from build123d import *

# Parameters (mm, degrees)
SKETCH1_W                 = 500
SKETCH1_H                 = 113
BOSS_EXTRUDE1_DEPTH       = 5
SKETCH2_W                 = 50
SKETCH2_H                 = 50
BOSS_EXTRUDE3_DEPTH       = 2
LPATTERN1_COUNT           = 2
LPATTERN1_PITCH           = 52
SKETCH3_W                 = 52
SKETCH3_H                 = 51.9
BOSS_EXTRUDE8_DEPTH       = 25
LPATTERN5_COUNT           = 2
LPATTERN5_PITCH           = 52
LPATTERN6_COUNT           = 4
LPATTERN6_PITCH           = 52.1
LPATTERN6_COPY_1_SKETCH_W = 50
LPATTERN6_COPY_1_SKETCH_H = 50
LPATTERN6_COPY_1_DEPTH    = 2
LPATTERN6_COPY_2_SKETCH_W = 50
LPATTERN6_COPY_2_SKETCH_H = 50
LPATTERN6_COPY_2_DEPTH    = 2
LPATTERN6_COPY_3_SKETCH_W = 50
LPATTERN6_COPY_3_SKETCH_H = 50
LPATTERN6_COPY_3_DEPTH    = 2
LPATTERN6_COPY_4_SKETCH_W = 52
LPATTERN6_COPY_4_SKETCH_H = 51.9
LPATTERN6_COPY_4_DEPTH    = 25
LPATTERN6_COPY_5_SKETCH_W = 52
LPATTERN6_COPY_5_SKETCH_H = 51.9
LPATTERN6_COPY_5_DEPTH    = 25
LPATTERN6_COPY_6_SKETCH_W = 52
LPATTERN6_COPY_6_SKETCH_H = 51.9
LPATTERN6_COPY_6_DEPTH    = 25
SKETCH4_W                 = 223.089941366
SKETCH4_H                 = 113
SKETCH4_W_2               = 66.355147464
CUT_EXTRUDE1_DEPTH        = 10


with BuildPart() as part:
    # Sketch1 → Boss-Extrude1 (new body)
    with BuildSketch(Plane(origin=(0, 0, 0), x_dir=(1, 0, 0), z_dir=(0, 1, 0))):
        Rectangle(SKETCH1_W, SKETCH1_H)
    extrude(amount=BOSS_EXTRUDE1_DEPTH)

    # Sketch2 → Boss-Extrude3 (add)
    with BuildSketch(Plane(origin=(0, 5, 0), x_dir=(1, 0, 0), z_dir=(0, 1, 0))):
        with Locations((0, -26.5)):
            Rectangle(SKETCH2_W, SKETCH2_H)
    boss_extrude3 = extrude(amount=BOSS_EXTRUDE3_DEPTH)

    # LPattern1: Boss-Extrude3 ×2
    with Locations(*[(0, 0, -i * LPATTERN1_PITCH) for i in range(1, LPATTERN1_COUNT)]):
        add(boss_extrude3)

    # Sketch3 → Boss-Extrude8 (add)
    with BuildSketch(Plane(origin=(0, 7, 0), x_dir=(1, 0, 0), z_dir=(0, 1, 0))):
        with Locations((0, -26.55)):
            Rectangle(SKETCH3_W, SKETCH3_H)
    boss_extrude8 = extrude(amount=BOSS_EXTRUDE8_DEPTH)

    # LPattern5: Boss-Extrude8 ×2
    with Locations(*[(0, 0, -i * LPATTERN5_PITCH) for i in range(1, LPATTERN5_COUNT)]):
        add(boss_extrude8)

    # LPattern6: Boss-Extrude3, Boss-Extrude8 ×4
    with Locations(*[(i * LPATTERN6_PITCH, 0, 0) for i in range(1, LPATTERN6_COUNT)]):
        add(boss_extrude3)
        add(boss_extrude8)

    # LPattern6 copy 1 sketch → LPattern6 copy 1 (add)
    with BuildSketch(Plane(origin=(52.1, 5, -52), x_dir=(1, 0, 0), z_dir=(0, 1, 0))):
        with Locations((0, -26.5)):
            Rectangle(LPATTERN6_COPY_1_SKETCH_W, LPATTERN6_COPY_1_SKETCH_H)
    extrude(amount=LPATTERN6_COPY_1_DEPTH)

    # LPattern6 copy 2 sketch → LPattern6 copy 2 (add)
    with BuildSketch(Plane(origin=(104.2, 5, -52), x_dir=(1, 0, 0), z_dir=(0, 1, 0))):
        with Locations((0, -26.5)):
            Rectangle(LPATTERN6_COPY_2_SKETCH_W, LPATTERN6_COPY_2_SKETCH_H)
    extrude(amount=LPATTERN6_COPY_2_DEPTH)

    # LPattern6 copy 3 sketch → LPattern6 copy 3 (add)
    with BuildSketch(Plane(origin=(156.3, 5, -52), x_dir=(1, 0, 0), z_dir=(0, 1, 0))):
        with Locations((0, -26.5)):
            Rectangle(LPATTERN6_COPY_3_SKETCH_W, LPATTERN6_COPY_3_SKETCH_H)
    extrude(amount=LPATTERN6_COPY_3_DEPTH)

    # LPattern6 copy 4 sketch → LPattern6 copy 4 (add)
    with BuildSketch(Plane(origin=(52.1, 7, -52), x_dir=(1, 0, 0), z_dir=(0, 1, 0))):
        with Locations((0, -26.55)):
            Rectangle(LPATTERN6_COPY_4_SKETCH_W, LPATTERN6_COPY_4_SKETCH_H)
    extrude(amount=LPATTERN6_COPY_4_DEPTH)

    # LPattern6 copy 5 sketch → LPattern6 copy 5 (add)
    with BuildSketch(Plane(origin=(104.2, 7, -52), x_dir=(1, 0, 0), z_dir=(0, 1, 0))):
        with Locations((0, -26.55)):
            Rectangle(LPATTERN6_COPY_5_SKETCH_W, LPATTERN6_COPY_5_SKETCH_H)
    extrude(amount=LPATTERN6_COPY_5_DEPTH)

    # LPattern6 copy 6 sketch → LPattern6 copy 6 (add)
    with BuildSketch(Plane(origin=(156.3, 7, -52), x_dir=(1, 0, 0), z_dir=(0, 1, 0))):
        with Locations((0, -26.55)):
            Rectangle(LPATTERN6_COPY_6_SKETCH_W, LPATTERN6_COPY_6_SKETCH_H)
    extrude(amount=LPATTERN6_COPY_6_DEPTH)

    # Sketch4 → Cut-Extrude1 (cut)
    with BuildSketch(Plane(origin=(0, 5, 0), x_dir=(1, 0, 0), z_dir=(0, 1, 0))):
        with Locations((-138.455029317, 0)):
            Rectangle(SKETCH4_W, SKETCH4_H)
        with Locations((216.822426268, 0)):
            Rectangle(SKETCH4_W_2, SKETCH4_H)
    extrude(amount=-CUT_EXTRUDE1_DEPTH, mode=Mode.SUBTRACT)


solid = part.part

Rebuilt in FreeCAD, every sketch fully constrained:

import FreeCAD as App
import Part
import Sketcher
Q = App.Units.Quantity

doc = App.newDocument("Part")
body = doc.addObject("PartDesign::Body", "Body")

# Sketch on XZ plane
sketch1 = body.newObject("Sketcher::SketchObject", "Sketch")
sketch1.AttachmentSupport = (doc.getObject("XZ_Plane"), [""])
sketch1.MapMode = "FlatFace"
sketch1.addGeometry([
    Part.LineSegment(App.Vector(-250, -56.5, 0), App.Vector(-250, 56.5, 0)),
    Part.LineSegment(App.Vector(-250, 56.5, 0), App.Vector(250, 56.5, 0)),
    Part.LineSegment(App.Vector(250, 56.5, 0), App.Vector(250, -56.5, 0)),
    Part.LineSegment(App.Vector(250, -56.5, 0), App.Vector(-250, -56.5, 0)),
], False)
sketch1.addConstraint([
    Sketcher.Constraint("Coincident", 0, 2, 1, 1),
    Sketcher.Constraint("Coincident", 1, 2, 2, 1),
    Sketcher.Constraint("Coincident", 2, 2, 3, 1),
    Sketcher.Constraint("Coincident", 3, 2, 0, 1),
    Sketcher.Constraint("Vertical", 0),
    Sketcher.Constraint("Horizontal", 1),
    Sketcher.Constraint("Vertical", 2),
    Sketcher.Constraint("Horizontal", 3),
    Sketcher.Constraint("Symmetric", 0, 2, 2, 2, -1, 1),
    Sketcher.Constraint("DistanceX", 1, 1, 1, 2, Q("500 mm")),
    Sketcher.Constraint("DistanceY", 0, 1, 0, 2, Q("113 mm")),
])
pad1 = body.newObject("PartDesign::Pad", "Pad")
pad1.Profile = sketch1
pad1.Length = 5
pad1.Reversed = True

# Sketch on XZ plane
sketch2 = body.newObject("Sketcher::SketchObject", "Sketch001")
sketch2.AttachmentSupport = (doc.getObject("XZ_Plane"), [""])
sketch2.MapMode = "FlatFace"
sketch2.AttachmentOffset = App.Placement(App.Vector(0, 0, -5), App.Rotation())
sketch2.addGeometry([
    Part.LineSegment(App.Vector(-25, 1.5, 0), App.Vector(-25, 51.5, 0)),
    Part.LineSegment(App.Vector(-25, 51.5, 0), App.Vector(25, 51.5, 0)),
    Part.LineSegment(App.Vector(25, 51.5, 0), App.Vector(25, 1.5, 0)),
    Part.LineSegment(App.Vector(25, 1.5, 0), App.Vector(-25, 1.5, 0)),
], False)
sketch2.addConstraint([
    Sketcher.Constraint("Coincident", 0, 2, 1, 1),
    Sketcher.Constraint("Coincident", 1, 2, 2, 1),
    Sketcher.Constraint("Coincident", 2, 2, 3, 1),
    Sketcher.Constraint("Coincident", 3, 2, 0, 1),
    Sketcher.Constraint("Vertical", 0),
    Sketcher.Constraint("Horizontal", 1),
    Sketcher.Constraint("Vertical", 2),
    Sketcher.Constraint("Horizontal", 3),
    Sketcher.Constraint("Equal", 3, 0),
    Sketcher.Constraint("DistanceX", 1, 1, 1, 2, Q("50 mm")),
    Sketcher.Constraint("DistanceX", 0, 2, -1, 1, Q("25 mm")),
    Sketcher.Constraint("DistanceY", -1, 1, 0, 2, Q("51.5 mm")),
])
pad2 = body.newObject("PartDesign::Pad", "Pad001")
pad2.Profile = sketch2
pad2.Length = 2
pad2.Reversed = True
doc.recompute()

linearpattern = body.newObject("PartDesign::LinearPattern", "LinearPattern")
linearpattern.Originals = [pad2]
linearpattern.Direction = (doc.getObject("Z_Axis"), [""])
linearpattern.Mode = "offset"
linearpattern.Offset = 52
linearpattern.Occurrences = 2
linearpattern.Reversed = True
body.Tip = linearpattern

# Sketch on XZ plane
sketch3 = body.newObject("Sketcher::SketchObject", "Sketch002")
sketch3.AttachmentSupport = (doc.getObject("XZ_Plane"), [""])
sketch3.MapMode = "FlatFace"
sketch3.AttachmentOffset = App.Placement(App.Vector(0, 0, -7), App.Rotation())
sketch3.addGeometry([
    Part.LineSegment(App.Vector(-26, 0.6, 0), App.Vector(-26, 52.5, 0)),
    Part.LineSegment(App.Vector(-26, 52.5, 0), App.Vector(26, 52.5, 0)),
    Part.LineSegment(App.Vector(26, 52.5, 0), App.Vector(26, 0.6, 0)),
    Part.LineSegment(App.Vector(26, 0.6, 0), App.Vector(-26, 0.6, 0)),
], False)
sketch3.addConstraint([
    Sketcher.Constraint("Coincident", 0, 2, 1, 1),
    Sketcher.Constraint("Coincident", 1, 2, 2, 1),
    Sketcher.Constraint("Coincident", 2, 2, 3, 1),
    Sketcher.Constraint("Coincident", 3, 2, 0, 1),
    Sketcher.Constraint("Vertical", 0),
    Sketcher.Constraint("Horizontal", 1),
    Sketcher.Constraint("Vertical", 2),
    Sketcher.Constraint("Horizontal", 3),
    Sketcher.Constraint("DistanceX", 1, 1, 1, 2, Q("52 mm")),
    Sketcher.Constraint("DistanceY", 0, 1, 0, 2, Q("51.9 mm")),
    Sketcher.Constraint("DistanceX", 0, 2, -1, 1, Q("26 mm")),
    Sketcher.Constraint("DistanceY", -1, 1, 0, 2, Q("52.5 mm")),
])
pad3 = body.newObject("PartDesign::Pad", "Pad002")
pad3.Profile = sketch3
pad3.Length = 25
pad3.Reversed = True
doc.recompute()

linearpattern2 = body.newObject("PartDesign::LinearPattern", "LinearPattern001")
linearpattern2.Originals = [pad3]
linearpattern2.Direction = (doc.getObject("Z_Axis"), [""])
linearpattern2.Mode = "offset"
linearpattern2.Offset = 52
linearpattern2.Occurrences = 2
linearpattern2.Reversed = True
body.Tip = linearpattern2
doc.recompute()

linearpattern3 = body.newObject("PartDesign::LinearPattern", "LinearPattern002")
linearpattern3.Originals = [pad2, pad3]
linearpattern3.Direction = (doc.getObject("X_Axis"), [""])
linearpattern3.Mode = "offset"
linearpattern3.Offset = 52.1
linearpattern3.Occurrences = 4
body.Tip = linearpattern3

# Sketch on XZ plane
sketch4 = body.newObject("Sketcher::SketchObject", "Sketch003")
sketch4.AttachmentSupport = (doc.getObject("XZ_Plane"), [""])
sketch4.MapMode = "FlatFace"
sketch4.AttachmentOffset = App.Placement(App.Vector(0, 0, -5), App.Rotation())
sketch4.addGeometry([
    Part.LineSegment(App.Vector(27.1, -50.5, 0), App.Vector(27.1, -0.5, 0)),
    Part.LineSegment(App.Vector(27.1, -0.5, 0), App.Vector(77.1, -0.5, 0)),
    Part.LineSegment(App.Vector(77.1, -0.5, 0), App.Vector(77.1, -50.5, 0)),
    Part.LineSegment(App.Vector(77.1, -50.5, 0), App.Vector(27.1, -50.5, 0)),
], False)
sketch4.addConstraint([
    Sketcher.Constraint("Coincident", 0, 2, 1, 1),
    Sketcher.Constraint("Coincident", 1, 2, 2, 1),
    Sketcher.Constraint("Coincident", 2, 2, 3, 1),
    Sketcher.Constraint("Coincident", 3, 2, 0, 1),
    Sketcher.Constraint("Vertical", 0),
    Sketcher.Constraint("Horizontal", 1),
    Sketcher.Constraint("Vertical", 2),
    Sketcher.Constraint("Horizontal", 3),
    Sketcher.Constraint("Equal", 3, 0),
    Sketcher.Constraint("DistanceX", 1, 1, 1, 2, Q("50 mm")),
    Sketcher.Constraint("DistanceX", -1, 1, 0, 2, Q("27.1 mm")),
    Sketcher.Constraint("DistanceY", 0, 2, -1, 1, Q("0.5 mm")),
])
pad4 = body.newObject("PartDesign::Pad", "Pad003")
pad4.Profile = sketch4
pad4.Length = 2
pad4.Reversed = True

# Sketch on XZ plane
sketch5 = body.newObject("Sketcher::SketchObject", "Sketch004")
sketch5.AttachmentSupport = (doc.getObject("XZ_Plane"), [""])
sketch5.MapMode = "FlatFace"
sketch5.AttachmentOffset = App.Placement(App.Vector(0, 0, -5), App.Rotation())
sketch5.addGeometry([
    Part.LineSegment(App.Vector(79.2, -50.5, 0), App.Vector(79.2, -0.5, 0)),
    Part.LineSegment(App.Vector(79.2, -0.5, 0), App.Vector(129.2, -0.5, 0)),
    Part.LineSegment(App.Vector(129.2, -0.5, 0), App.Vector(129.2, -50.5, 0)),
    Part.LineSegment(App.Vector(129.2, -50.5, 0), App.Vector(79.2, -50.5, 0)),
], False)
sketch5.addConstraint([
    Sketcher.Constraint("Coincident", 0, 2, 1, 1),
    Sketcher.Constraint("Coincident", 1, 2, 2, 1),
    Sketcher.Constraint("Coincident", 2, 2, 3, 1),
    Sketcher.Constraint("Coincident", 3, 2, 0, 1),
    Sketcher.Constraint("Vertical", 0),
    Sketcher.Constraint("Horizontal", 1),
    Sketcher.Constraint("Vertical", 2),
    Sketcher.Constraint("Horizontal", 3),
    Sketcher.Constraint("Equal", 3, 0),
    Sketcher.Constraint("DistanceX", 1, 1, 1, 2, Q("50 mm")),
    Sketcher.Constraint("DistanceX", -1, 1, 0, 2, Q("79.2 mm")),
    Sketcher.Constraint("DistanceY", 0, 2, -1, 1, Q("0.5 mm")),
])
pad5 = body.newObject("PartDesign::Pad", "Pad004")
pad5.Profile = sketch5
pad5.Length = 2
pad5.Reversed = True

# Sketch on XZ plane
sketch6 = body.newObject("Sketcher::SketchObject", "Sketch005")
sketch6.AttachmentSupport = (doc.getObject("XZ_Plane"), [""])
sketch6.MapMode = "FlatFace"
sketch6.AttachmentOffset = App.Placement(App.Vector(0, 0, -5), App.Rotation())
sketch6.addGeometry([
    Part.LineSegment(App.Vector(131.3, -50.5, 0), App.Vector(131.3, -0.5, 0)),
    Part.LineSegment(App.Vector(131.3, -0.5, 0), App.Vector(181.3, -0.5, 0)),
    Part.LineSegment(App.Vector(181.3, -0.5, 0), App.Vector(181.3, -50.5, 0)),
    Part.LineSegment(App.Vector(181.3, -50.5, 0), App.Vector(131.3, -50.5, 0)),
], False)
sketch6.addConstraint([
    Sketcher.Constraint("Coincident", 0, 2, 1, 1),
    Sketcher.Constraint("Coincident", 1, 2, 2, 1),
    Sketcher.Constraint("Coincident", 2, 2, 3, 1),
    Sketcher.Constraint("Coincident", 3, 2, 0, 1),
    Sketcher.Constraint("Vertical", 0),
    Sketcher.Constraint("Horizontal", 1),
    Sketcher.Constraint("Vertical", 2),
    Sketcher.Constraint("Horizontal", 3),
    Sketcher.Constraint("Equal", 3, 0),
    Sketcher.Constraint("DistanceX", 1, 1, 1, 2, Q("50 mm")),
    Sketcher.Constraint("DistanceX", -1, 1, 0, 2, Q("131.3 mm")),
    Sketcher.Constraint("DistanceY", 0, 2, -1, 1, Q("0.5 mm")),
])
pad6 = body.newObject("PartDesign::Pad", "Pad005")
pad6.Profile = sketch6
pad6.Length = 2
pad6.Reversed = True

# Sketch on XZ plane
sketch7 = body.newObject("Sketcher::SketchObject", "Sketch006")
sketch7.AttachmentSupport = (doc.getObject("XZ_Plane"), [""])
sketch7.MapMode = "FlatFace"
sketch7.AttachmentOffset = App.Placement(App.Vector(0, 0, -7), App.Rotation())
sketch7.addGeometry([
    Part.LineSegment(App.Vector(26.1, -51.4, 0), App.Vector(26.1, 0.5, 0)),
    Part.LineSegment(App.Vector(26.1, 0.5, 0), App.Vector(78.1, 0.5, 0)),
    Part.LineSegment(App.Vector(78.1, 0.5, 0), App.Vector(78.1, -51.4, 0)),
    Part.LineSegment(App.Vector(78.1, -51.4, 0), App.Vector(26.1, -51.4, 0)),
], False)
sketch7.addConstraint([
    Sketcher.Constraint("Coincident", 0, 2, 1, 1),
    Sketcher.Constraint("Coincident", 1, 2, 2, 1),
    Sketcher.Constraint("Coincident", 2, 2, 3, 1),
    Sketcher.Constraint("Coincident", 3, 2, 0, 1),
    Sketcher.Constraint("Vertical", 0),
    Sketcher.Constraint("Horizontal", 1),
    Sketcher.Constraint("Vertical", 2),
    Sketcher.Constraint("Horizontal", 3),
    Sketcher.Constraint("DistanceX", 1, 1, 1, 2, Q("52 mm")),
    Sketcher.Constraint("DistanceY", 0, 1, 0, 2, Q("51.9 mm")),
    Sketcher.Constraint("DistanceX", -1, 1, 0, 2, Q("26.1 mm")),
    Sketcher.Constraint("DistanceY", -1, 1, 0, 2, Q("0.5 mm")),
])
pad7 = body.newObject("PartDesign::Pad", "Pad006")
pad7.Profile = sketch7
pad7.Length = 25
pad7.Reversed = True

# Sketch on XZ plane
sketch8 = body.newObject("Sketcher::SketchObject", "Sketch007")
sketch8.AttachmentSupport = (doc.getObject("XZ_Plane"), [""])
sketch8.MapMode = "FlatFace"
sketch8.AttachmentOffset = App.Placement(App.Vector(0, 0, -7), App.Rotation())
sketch8.addGeometry([
    Part.LineSegment(App.Vector(78.2, -51.4, 0), App.Vector(78.2, 0.5, 0)),
    Part.LineSegment(App.Vector(78.2, 0.5, 0), App.Vector(130.2, 0.5, 0)),
    Part.LineSegment(App.Vector(130.2, 0.5, 0), App.Vector(130.2, -51.4, 0)),
    Part.LineSegment(App.Vector(130.2, -51.4, 0), App.Vector(78.2, -51.4, 0)),
], False)
sketch8.addConstraint([
    Sketcher.Constraint("Coincident", 0, 2, 1, 1),
    Sketcher.Constraint("Coincident", 1, 2, 2, 1),
    Sketcher.Constraint("Coincident", 2, 2, 3, 1),
    Sketcher.Constraint("Coincident", 3, 2, 0, 1),
    Sketcher.Constraint("Vertical", 0),
    Sketcher.Constraint("Horizontal", 1),
    Sketcher.Constraint("Vertical", 2),
    Sketcher.Constraint("Horizontal", 3),
    Sketcher.Constraint("DistanceX", 1, 1, 1, 2, Q("52 mm")),
    Sketcher.Constraint("DistanceY", 0, 1, 0, 2, Q("51.9 mm")),
    Sketcher.Constraint("DistanceX", -1, 1, 0, 2, Q("78.2 mm")),
    Sketcher.Constraint("DistanceY", -1, 1, 0, 2, Q("0.5 mm")),
])
pad8 = body.newObject("PartDesign::Pad", "Pad007")
pad8.Profile = sketch8
pad8.Length = 25
pad8.Reversed = True

# Sketch on XZ plane
sketch9 = body.newObject("Sketcher::SketchObject", "Sketch008")
sketch9.AttachmentSupport = (doc.getObject("XZ_Plane"), [""])
sketch9.MapMode = "FlatFace"
sketch9.AttachmentOffset = App.Placement(App.Vector(0, 0, -7), App.Rotation())
sketch9.addGeometry([
    Part.LineSegment(App.Vector(130.3, -51.4, 0), App.Vector(130.3, 0.5, 0)),
    Part.LineSegment(App.Vector(130.3, 0.5, 0), App.Vector(182.3, 0.5, 0)),
    Part.LineSegment(App.Vector(182.3, 0.5, 0), App.Vector(182.3, -51.4, 0)),
    Part.LineSegment(App.Vector(182.3, -51.4, 0), App.Vector(130.3, -51.4, 0)),
], False)
sketch9.addConstraint([
    Sketcher.Constraint("Coincident", 0, 2, 1, 1),
    Sketcher.Constraint("Coincident", 1, 2, 2, 1),
    Sketcher.Constraint("Coincident", 2, 2, 3, 1),
    Sketcher.Constraint("Coincident", 3, 2, 0, 1),
    Sketcher.Constraint("Vertical", 0),
    Sketcher.Constraint("Horizontal", 1),
    Sketcher.Constraint("Vertical", 2),
    Sketcher.Constraint("Horizontal", 3),
    Sketcher.Constraint("DistanceX", 1, 1, 1, 2, Q("52 mm")),
    Sketcher.Constraint("DistanceY", 0, 1, 0, 2, Q("51.9 mm")),
    Sketcher.Constraint("DistanceX", -1, 1, 0, 2, Q("130.3 mm")),
    Sketcher.Constraint("DistanceY", -1, 1, 0, 2, Q("0.5 mm")),
])
pad9 = body.newObject("PartDesign::Pad", "Pad008")
pad9.Profile = sketch9
pad9.Length = 25
pad9.Reversed = True

# Sketch on XZ plane
sketch10 = body.newObject("Sketcher::SketchObject", "Sketch009")
sketch10.AttachmentSupport = (doc.getObject("XZ_Plane"), [""])
sketch10.MapMode = "FlatFace"
sketch10.AttachmentOffset = App.Placement(App.Vector(0, 0, -5), App.Rotation())
sketch10.addGeometry([
    Part.LineSegment(App.Vector(-250, -56.5, 0), App.Vector(-250, 56.5, 0)),  # 0
    Part.LineSegment(App.Vector(-250, 56.5, 0), App.Vector(-26.910059, 56.5, 0)),  # 1
    Part.LineSegment(App.Vector(-26.910059, 56.5, 0), App.Vector(-26.910059, -56.5, 0)),  # 2
    Part.LineSegment(App.Vector(-26.910059, -56.5, 0), App.Vector(-250, -56.5, 0)),  # 3
    Part.LineSegment(App.Vector(183.644853, -56.5, 0), App.Vector(183.644853, 56.5, 0)),  # 4
    Part.LineSegment(App.Vector(183.644853, 56.5, 0), App.Vector(250, 56.5, 0)),  # 5
    Part.LineSegment(App.Vector(250, 56.5, 0), App.Vector(250, -56.5, 0)),  # 6
    Part.LineSegment(App.Vector(250, -56.5, 0), App.Vector(183.644853, -56.5, 0)),  # 7
], False)
sketch10.addConstraint([
    Sketcher.Constraint("Coincident", 0, 2, 1, 1),
    Sketcher.Constraint("Coincident", 1, 2, 2, 1),
    Sketcher.Constraint("Coincident", 2, 2, 3, 1),
    Sketcher.Constraint("Coincident", 3, 2, 0, 1),
    Sketcher.Constraint("Coincident", 4, 2, 5, 1),
    Sketcher.Constraint("Coincident", 5, 2, 6, 1),
    Sketcher.Constraint("Coincident", 6, 2, 7, 1),
    Sketcher.Constraint("Coincident", 7, 2, 4, 1),
    Sketcher.Constraint("Vertical", 0),
    Sketcher.Constraint("Horizontal", 1),
    Sketcher.Constraint("Vertical", 2),
    Sketcher.Constraint("Horizontal", 3),
    Sketcher.Constraint("Vertical", 4),
    Sketcher.Constraint("Horizontal", 5),
    Sketcher.Constraint("Vertical", 6),
    Sketcher.Constraint("Horizontal", 7),
    Sketcher.Constraint("Symmetric", 3, 2, 5, 2, -1, 1),
    Sketcher.Constraint("Horizontal", 1, 2, 4, 2),
    Sketcher.Constraint("Horizontal", 3, 2, 6, 2),
    Sketcher.Constraint("DistanceY", 0, 1, 0, 2, Q("113 mm")),
    Sketcher.Constraint("DistanceX", 0, 2, -1, 1, Q("250 mm")),
    Sketcher.Constraint("DistanceX", 1, 1, 1, 2, Q("223.089941 mm")),
    Sketcher.Constraint("DistanceX", 5, 1, 5, 2, Q("66.355147 mm")),
])
pocket1 = body.newObject("PartDesign::Pocket", "Pocket")
pocket1.Profile = sketch10
pocket1.Length = 10
pocket1.Reversed = True

doc.recompute()
